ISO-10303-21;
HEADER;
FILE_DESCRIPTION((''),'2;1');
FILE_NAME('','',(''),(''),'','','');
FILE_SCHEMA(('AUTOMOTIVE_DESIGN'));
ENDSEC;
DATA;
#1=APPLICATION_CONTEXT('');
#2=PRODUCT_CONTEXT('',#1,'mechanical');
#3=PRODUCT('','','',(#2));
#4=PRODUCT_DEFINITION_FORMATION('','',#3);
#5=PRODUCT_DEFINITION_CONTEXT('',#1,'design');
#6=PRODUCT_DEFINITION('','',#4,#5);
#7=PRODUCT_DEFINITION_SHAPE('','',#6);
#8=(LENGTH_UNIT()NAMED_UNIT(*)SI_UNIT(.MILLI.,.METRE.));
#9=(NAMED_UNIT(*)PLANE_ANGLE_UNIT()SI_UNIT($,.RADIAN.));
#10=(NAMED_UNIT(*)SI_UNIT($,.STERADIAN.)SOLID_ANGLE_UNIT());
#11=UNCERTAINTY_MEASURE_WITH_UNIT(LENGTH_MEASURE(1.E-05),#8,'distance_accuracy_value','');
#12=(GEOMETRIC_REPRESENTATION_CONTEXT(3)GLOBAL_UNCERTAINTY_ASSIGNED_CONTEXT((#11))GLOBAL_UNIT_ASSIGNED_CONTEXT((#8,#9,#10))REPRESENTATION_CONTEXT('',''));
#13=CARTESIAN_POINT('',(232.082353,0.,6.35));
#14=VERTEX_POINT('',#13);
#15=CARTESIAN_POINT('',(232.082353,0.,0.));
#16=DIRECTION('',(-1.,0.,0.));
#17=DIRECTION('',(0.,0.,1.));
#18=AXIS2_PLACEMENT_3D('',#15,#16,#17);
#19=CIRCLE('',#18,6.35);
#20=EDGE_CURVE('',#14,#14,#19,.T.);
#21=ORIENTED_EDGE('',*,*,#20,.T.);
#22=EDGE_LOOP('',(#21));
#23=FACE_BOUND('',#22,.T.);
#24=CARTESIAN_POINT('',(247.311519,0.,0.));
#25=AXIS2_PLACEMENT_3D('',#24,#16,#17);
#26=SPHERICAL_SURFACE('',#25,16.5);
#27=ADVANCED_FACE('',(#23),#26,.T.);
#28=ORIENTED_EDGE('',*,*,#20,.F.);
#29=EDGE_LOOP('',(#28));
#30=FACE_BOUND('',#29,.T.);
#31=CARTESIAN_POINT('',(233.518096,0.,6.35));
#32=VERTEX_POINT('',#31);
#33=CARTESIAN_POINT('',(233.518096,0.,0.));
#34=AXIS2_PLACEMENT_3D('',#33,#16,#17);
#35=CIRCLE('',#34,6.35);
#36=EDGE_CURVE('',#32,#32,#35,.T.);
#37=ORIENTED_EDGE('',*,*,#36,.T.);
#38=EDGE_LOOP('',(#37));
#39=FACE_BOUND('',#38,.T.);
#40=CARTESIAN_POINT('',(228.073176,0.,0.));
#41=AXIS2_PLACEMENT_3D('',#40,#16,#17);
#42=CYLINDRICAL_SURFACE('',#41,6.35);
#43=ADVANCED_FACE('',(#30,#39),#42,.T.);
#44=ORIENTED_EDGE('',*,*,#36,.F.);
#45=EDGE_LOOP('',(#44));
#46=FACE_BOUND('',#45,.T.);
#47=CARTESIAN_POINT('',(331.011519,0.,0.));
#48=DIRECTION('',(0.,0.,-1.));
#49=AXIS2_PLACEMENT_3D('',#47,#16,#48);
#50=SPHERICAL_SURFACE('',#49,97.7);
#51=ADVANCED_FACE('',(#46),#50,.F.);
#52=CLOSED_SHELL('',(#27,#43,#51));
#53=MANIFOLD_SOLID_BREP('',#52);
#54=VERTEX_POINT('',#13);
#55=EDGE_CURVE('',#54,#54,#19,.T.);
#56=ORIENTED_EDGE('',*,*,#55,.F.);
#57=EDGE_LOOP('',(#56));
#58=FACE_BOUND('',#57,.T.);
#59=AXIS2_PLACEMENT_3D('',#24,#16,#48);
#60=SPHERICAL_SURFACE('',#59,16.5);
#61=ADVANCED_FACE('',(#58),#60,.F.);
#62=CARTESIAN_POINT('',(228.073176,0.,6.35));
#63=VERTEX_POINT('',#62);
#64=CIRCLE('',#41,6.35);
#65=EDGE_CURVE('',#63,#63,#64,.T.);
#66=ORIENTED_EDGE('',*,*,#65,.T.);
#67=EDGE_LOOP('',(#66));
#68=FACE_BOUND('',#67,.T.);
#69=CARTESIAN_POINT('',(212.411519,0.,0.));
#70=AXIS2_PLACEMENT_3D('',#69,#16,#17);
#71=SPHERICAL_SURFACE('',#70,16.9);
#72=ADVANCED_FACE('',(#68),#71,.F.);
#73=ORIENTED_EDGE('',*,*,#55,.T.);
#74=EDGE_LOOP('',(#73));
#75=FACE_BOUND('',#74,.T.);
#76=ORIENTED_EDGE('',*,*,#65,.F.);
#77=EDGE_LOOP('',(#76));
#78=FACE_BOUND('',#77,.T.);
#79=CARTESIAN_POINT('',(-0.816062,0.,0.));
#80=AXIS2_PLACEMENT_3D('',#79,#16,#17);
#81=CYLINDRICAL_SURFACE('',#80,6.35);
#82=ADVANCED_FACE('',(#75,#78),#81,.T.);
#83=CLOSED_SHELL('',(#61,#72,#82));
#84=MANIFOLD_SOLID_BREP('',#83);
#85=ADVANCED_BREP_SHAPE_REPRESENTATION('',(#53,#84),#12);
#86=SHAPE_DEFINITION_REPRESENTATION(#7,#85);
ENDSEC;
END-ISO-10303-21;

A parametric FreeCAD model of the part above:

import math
import FreeCAD as App
import Part
import Sketcher
from FreeCAD import Vector

doc = App.newDocument("Part")
body = doc.addObject("PartDesign::Body", "Body")

sketch1 = doc.addObject("Sketcher::SketchObject", "Sketch")
body.addObject(sketch1)
sketch1.AttachmentSupport = (doc.XZ_Plane, [""])
sketch1.MapMode = "FlatFace"
sketch1.addGeometry([
    Part.LineSegment(Vector(232.082353, -6.35, 0), Vector(228.073176, -6.35, 0)),
    Part.ArcOfCircle(Part.Circle(Vector(212.411519, 0, 0), Vector(0, 0, 1), 16.9), math.radians(-22.070035), math.radians(0)),
    Part.LineSegment(Vector(229.311519, 0, 0), Vector(230.811519, 0, 0)),
    Part.ArcOfCircle(Part.Circle(Vector(247.311519, 0, 0), Vector(0, 0, 1), 16.5), math.radians(-180), math.radians(-157.365666)),
], False)
sketch1.addConstraint([
    Sketcher.Constraint("Coincident", 0, 2, 1, 1),
    Sketcher.Constraint("Coincident", 1, 2, 2, 1),
    Sketcher.Constraint("Coincident", 2, 2, 3, 1),
    Sketcher.Constraint("Coincident", 3, 2, 0, 1),
    Sketcher.Constraint("Horizontal", 0),
    Sketcher.Constraint("Horizontal", 2),
    Sketcher.Constraint("PointOnObject", 1, 3, -1),
    Sketcher.Constraint("PointOnObject", 3, 3, -1),
    Sketcher.Constraint("PointOnObject", 1, 2, -1),
    Sketcher.Constraint("Radius", 1, 16.9),
    Sketcher.Constraint("Radius", 3, 16.5),
    Sketcher.Constraint("DistanceX", 2, 1, 2, 2, 1.5),
    Sketcher.Constraint("DistanceY", 0, 2, -1, 1, 6.35),
    Sketcher.Constraint("DistanceX", -1, 1, 1, 3, 212.411519),
])
revolution = doc.addObject("PartDesign::Revolution", "Revolution")
body.addObject(revolution)
revolution.Profile = sketch1
revolution.ReferenceAxis = (sketch1, ["H_Axis"])
revolution.Angle = 360
body2 = doc.addObject("PartDesign::Body", "Body001")

sketch2 = doc.addObject("Sketcher::SketchObject", "Sketch001")
body2.addObject(sketch2)
sketch2.AttachmentSupport = (doc.getObject("XZ_Plane001"), [""])
sketch2.MapMode = "FlatFace"
sketch2.addGeometry([
    Part.LineSegment(Vector(233.518096, -6.35, 0), Vector(232.082353, -6.35, 0)),
    Part.ArcOfCircle(Part.Circle(Vector(247.311519, 0, 0), Vector(0, 0, 1), 16.5), math.radians(-180), math.radians(-157.365666)),
    Part.LineSegment(Vector(230.811519, 0, 0), Vector(233.311519, 0, 0)),
    Part.ArcOfCircle(Part.Circle(Vector(331.011519, 0, 0), Vector(0, 0, 1), 97.7), math.radians(180), math.radians(183.726559)),
], False)
sketch2.addConstraint([
    Sketcher.Constraint("Coincident", 0, 2, 1, 2),
    Sketcher.Constraint("Coincident", 1, 1, 2, 1),
    Sketcher.Constraint("Coincident", 2, 2, 3, 1),
    Sketcher.Constraint("Coincident", 3, 2, 0, 1),
    Sketcher.Constraint("Horizontal", 0),
    Sketcher.Constraint("Horizontal", 2),
    Sketcher.Constraint("PointOnObject", 1, 3, -1),
    Sketcher.Constraint("PointOnObject", 3, 3, -1),
    Sketcher.Constraint("PointOnObject", 1, 1, -1),
    Sketcher.Constraint("Radius", 1, 16.5),
    Sketcher.Constraint("Radius", 3, 97.7),
    Sketcher.Constraint("DistanceX", 2, 1, 2, 2, 2.5),
    Sketcher.Constraint("DistanceY", 0, 2, -1, 1, 6.35),
    Sketcher.Constraint("DistanceX", -1, 1, 1, 3, 247.311519),
])
revolution2 = doc.addObject("PartDesign::Revolution", "Revolution001")
body2.addObject(revolution2)
revolution2.Profile = sketch2
revolution2.ReferenceAxis = (sketch2, ["H_Axis"])
revolution2.Angle = 360

doc.recompute()
